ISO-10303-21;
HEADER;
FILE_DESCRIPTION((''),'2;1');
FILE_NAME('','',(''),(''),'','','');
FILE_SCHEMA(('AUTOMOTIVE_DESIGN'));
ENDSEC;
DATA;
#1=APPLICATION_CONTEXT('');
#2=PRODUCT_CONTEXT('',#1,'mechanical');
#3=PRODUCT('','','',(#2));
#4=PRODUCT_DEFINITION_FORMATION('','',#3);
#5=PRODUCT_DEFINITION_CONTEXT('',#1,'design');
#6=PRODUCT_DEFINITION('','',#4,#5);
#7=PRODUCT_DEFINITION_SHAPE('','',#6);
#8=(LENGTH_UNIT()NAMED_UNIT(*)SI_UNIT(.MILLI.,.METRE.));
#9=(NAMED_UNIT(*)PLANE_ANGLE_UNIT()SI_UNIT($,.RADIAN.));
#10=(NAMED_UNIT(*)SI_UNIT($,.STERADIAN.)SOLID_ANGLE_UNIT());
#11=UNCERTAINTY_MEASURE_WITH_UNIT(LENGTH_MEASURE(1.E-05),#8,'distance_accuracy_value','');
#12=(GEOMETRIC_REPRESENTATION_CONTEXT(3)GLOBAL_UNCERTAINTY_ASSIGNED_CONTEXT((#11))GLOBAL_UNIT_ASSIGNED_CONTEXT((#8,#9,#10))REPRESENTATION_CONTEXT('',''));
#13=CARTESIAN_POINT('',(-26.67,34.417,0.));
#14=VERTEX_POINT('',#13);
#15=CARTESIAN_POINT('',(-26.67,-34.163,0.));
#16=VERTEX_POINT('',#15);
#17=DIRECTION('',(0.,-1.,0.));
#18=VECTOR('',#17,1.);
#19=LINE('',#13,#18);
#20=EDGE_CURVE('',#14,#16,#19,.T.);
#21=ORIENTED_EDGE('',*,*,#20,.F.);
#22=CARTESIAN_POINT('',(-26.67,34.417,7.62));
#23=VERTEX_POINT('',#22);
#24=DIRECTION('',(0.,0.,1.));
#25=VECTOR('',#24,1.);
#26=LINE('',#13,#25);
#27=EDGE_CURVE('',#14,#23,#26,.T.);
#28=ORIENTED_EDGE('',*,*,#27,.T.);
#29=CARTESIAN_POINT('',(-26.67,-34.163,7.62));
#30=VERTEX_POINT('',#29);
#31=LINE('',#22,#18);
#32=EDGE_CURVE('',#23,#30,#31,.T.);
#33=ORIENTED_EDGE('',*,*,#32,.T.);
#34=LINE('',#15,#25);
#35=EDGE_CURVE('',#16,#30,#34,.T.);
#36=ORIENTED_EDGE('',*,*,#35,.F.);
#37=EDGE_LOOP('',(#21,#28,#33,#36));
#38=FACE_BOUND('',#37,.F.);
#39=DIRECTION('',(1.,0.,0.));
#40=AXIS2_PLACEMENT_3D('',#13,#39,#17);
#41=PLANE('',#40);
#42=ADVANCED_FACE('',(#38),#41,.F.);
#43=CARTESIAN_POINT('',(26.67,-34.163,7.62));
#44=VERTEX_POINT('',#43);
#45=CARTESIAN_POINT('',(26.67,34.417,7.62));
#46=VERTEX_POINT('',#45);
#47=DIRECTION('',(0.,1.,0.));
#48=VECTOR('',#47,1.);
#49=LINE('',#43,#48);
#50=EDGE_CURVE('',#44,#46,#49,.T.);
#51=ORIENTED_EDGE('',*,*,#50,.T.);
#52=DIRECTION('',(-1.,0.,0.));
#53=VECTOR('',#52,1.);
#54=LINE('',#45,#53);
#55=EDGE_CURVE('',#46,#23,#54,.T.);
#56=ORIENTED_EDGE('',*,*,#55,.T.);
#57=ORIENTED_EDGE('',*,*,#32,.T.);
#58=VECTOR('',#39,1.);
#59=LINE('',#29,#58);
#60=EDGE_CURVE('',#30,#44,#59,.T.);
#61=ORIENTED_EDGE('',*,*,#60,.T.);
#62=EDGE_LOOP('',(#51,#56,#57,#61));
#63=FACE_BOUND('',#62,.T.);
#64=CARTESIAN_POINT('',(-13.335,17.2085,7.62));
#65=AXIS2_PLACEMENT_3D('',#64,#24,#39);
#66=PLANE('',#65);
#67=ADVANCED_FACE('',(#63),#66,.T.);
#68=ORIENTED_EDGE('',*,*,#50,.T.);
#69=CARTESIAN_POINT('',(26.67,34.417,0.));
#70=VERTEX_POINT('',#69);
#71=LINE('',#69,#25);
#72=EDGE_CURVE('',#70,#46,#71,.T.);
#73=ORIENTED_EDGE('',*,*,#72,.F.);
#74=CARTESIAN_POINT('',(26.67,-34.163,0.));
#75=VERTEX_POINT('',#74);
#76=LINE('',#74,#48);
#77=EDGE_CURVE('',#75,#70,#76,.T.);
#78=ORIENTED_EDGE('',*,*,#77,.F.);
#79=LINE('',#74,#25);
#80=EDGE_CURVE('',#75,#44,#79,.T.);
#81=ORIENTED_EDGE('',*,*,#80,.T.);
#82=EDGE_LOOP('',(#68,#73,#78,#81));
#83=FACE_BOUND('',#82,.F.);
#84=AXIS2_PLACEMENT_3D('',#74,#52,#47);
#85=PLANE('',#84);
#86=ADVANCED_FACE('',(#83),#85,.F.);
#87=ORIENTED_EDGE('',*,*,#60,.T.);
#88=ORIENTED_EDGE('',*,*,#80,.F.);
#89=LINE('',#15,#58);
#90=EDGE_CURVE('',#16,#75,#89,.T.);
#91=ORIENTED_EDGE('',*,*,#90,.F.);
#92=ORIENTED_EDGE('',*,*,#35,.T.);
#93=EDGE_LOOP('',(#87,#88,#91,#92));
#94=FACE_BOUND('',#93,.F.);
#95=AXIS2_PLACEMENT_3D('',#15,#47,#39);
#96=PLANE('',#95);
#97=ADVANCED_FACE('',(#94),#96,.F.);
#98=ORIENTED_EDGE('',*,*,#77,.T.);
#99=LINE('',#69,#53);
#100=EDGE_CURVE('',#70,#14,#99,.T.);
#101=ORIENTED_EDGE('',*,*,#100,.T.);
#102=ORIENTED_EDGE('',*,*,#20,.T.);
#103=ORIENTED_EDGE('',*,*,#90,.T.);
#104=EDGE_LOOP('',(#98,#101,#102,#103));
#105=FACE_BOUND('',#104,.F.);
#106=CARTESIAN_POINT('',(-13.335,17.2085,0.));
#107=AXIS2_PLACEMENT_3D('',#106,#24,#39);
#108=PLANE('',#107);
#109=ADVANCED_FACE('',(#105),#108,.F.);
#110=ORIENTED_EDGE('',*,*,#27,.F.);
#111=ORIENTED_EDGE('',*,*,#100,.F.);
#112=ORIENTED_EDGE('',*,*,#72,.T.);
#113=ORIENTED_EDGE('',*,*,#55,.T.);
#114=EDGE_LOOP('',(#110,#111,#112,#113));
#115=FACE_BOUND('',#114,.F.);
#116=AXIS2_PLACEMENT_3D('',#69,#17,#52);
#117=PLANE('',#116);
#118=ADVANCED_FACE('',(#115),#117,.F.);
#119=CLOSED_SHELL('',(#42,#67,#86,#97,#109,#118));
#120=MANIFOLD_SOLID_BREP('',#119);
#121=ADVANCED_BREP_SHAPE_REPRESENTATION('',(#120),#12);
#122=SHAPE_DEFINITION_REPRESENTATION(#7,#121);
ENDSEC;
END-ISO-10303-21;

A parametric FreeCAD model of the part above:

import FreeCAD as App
import Part
import Sketcher

V = App.Vector
Q = App.Units.Quantity

doc = App.newDocument("Part")
params = doc.addObject("Spreadsheet::Sheet", "Params")
for row, (alias, value) in enumerate([
    ("sketch1_width", "2.1 in"),
    ("sketch1_height", "2.7 in"),
    ("pad1_length", "0.3 in"),
], start=1):
    params.set(f"A{row}", alias)
    params.set(f"B{row}", "=" + value)
    params.setAlias(f"B{row}", alias)

body = doc.addObject("PartDesign::Body", "Body")

# Sketch on XY plane
sketch1 = body.newObject("Sketcher::SketchObject", "Sketch")
sketch1.AttachmentSupport = (doc.getObject("XY_Plane"), [""])
sketch1.MapMode = "FlatFace"
sketch1.addGeometry([
    Part.LineSegment(V(-27, 34, 0), V(-27, -34, 0)),
    Part.LineSegment(V(-27, -34, 0), V(27, -34, 0)),
    Part.LineSegment(V(27, -34, 0), V(27, 34, 0)),
    Part.LineSegment(V(27, 34, 0), V(-27, 34, 0)),
], False)
sketch1.addConstraint([
    Sketcher.Constraint("Coincident", 0, 2, 1, 1),
    Sketcher.Constraint("Coincident", 1, 2, 2, 1),
    Sketcher.Constraint("Coincident", 2, 2, 3, 1),
    Sketcher.Constraint("Coincident", 3, 2, 0, 1),
    Sketcher.Constraint("Vertical", 0),
    Sketcher.Constraint("Horizontal", 1),
    Sketcher.Constraint("Vertical", 2),
    Sketcher.Constraint("Horizontal", 3),
    Sketcher.Constraint("DistanceX", 1, 1, 1, 2, Q("2.1 in")),
    Sketcher.Constraint("DistanceY", 0, 2, 0, 1, Q("2.7 in")),
    Sketcher.Constraint("DistanceX", 0, 2, -1, 1, Q("1.05 in")),
    Sketcher.Constraint("DistanceY", 0, 2, -1, 1, Q("1.345 in")),
])
sketch1.setExpression("Constraints[8]", "Params.sketch1_width")
sketch1.setExpression("Constraints[9]", "Params.sketch1_height")
pad1 = body.newObject("PartDesign::Pad", "Pad")
pad1.Profile = sketch1
pad1.setExpression("Length", "Params.pad1_length")

doc.recompute()
